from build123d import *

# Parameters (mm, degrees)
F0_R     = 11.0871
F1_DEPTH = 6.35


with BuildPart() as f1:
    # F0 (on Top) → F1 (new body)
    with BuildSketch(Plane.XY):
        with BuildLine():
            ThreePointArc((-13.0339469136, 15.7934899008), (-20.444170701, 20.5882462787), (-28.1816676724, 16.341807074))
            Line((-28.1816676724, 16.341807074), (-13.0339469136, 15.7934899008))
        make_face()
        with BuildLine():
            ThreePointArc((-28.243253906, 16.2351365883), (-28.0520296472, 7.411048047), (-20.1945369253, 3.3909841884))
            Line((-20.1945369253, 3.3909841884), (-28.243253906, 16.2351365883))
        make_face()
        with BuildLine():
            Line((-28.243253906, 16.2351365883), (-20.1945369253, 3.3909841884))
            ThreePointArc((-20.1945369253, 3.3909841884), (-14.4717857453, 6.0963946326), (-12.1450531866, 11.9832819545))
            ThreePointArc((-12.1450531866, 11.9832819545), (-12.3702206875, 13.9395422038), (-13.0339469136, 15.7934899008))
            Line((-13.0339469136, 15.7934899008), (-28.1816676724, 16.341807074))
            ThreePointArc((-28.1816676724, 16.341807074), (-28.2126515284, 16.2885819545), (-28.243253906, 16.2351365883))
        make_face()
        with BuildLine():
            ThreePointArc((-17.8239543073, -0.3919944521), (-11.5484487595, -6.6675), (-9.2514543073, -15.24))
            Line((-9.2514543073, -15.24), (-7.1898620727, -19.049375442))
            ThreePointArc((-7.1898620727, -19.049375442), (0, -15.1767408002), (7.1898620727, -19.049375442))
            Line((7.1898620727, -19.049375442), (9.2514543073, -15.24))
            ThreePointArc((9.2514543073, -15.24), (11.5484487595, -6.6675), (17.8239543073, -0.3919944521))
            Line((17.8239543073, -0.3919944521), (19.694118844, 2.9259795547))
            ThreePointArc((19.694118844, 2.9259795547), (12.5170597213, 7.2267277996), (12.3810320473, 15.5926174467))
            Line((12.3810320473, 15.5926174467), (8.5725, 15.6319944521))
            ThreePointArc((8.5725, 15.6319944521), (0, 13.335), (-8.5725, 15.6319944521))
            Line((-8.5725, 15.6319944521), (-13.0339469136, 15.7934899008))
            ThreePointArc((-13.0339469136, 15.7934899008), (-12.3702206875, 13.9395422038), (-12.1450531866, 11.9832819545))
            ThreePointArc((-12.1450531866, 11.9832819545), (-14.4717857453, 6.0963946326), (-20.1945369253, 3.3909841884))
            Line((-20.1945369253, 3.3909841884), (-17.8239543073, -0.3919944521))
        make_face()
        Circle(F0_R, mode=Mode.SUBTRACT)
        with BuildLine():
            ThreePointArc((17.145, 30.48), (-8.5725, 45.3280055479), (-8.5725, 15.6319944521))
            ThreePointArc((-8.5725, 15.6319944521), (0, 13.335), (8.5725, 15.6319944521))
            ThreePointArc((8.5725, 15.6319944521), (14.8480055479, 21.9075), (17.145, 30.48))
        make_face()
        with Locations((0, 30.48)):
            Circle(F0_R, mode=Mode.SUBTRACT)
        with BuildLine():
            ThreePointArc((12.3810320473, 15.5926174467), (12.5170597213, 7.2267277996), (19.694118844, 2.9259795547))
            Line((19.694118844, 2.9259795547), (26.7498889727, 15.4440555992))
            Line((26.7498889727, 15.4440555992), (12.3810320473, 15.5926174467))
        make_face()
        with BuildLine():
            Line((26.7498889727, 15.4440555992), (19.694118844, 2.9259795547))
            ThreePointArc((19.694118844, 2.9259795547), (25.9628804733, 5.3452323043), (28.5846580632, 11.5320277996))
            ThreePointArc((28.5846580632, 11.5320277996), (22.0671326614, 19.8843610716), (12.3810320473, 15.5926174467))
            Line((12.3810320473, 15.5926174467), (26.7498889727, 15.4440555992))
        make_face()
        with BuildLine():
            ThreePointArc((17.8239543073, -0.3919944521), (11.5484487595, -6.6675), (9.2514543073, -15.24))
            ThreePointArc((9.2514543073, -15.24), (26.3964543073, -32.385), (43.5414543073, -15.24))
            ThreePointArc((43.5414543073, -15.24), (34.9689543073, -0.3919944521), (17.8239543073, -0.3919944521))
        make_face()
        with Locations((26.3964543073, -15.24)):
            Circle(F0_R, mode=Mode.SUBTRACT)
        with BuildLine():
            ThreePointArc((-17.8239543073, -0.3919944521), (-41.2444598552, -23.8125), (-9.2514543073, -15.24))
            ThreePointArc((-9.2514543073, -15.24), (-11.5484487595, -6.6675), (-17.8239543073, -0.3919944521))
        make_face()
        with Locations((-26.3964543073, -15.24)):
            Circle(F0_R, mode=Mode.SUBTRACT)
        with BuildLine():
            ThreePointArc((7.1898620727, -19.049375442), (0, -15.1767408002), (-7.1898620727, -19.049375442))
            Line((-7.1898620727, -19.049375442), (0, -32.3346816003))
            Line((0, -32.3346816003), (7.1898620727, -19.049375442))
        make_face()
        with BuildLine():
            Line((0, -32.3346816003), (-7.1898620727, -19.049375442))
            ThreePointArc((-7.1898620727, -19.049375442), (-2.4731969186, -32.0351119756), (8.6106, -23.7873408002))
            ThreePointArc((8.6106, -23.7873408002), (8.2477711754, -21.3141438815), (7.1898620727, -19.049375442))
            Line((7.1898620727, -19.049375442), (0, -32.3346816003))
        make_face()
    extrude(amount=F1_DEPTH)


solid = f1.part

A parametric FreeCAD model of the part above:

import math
import FreeCAD as App
import Part
import Sketcher

V = App.Vector
Q = App.Units.Quantity

doc = App.newDocument("Part")
body = doc.addObject("PartDesign::Body", "Body")

# Sketch on XY plane
sketch1 = doc.addObject("Sketcher::SketchObject", "Sketch")
body.addObject(sketch1)
sketch1.AttachmentSupport = (doc.XY_Plane, [""])
sketch1.MapMode = "FlatFace"
sketch1.addGeometry(Part.ArcOfCircle(Part.Circle(V(-20.76, 11.98, 0), V(0, 0, 1), 8.61), math.radians(26), math.radians(150)), False)
sketch1.addGeometry(Part.ArcOfCircle(Part.Circle(V(-20.76, 11.98, 0), V(0, 0, 1), 8.61), math.radians(149.59), math.radians(150.41)), False)
sketch1.addGeometry(Part.ArcOfCircle(Part.Circle(V(-20.76, 11.98, 0), V(0, 0, 1), 8.61), math.radians(150), math.radians(274)), False)
sketch1.addGeometry(Part.LineSegment(V(-20.19, 3.39, 0), V(-17.82, -0.39, 0)), False)
sketch1.addGeometry(Part.ArcOfCircle(Part.Circle(V(-26.4, -15.24, 0), V(0, 0, 1), 17.14), math.radians(60), math.radians(360)), False)
sketch1.addGeometry(Part.LineSegment(V(-9.25, -15.24, 0), V(-7.19, -19.05, 0)), False)
sketch1.addGeometry(Part.ArcOfCircle(Part.Circle(V(0, -23.79, 0), V(0, 0, 1), 8.61), math.radians(147), math.radians(360)), False)
sketch1.addGeometry(Part.ArcOfCircle(Part.Circle(V(0, -23.79, 0), V(0, 0, 1), 8.61), math.radians(0), math.radians(33)), False)
sketch1.addGeometry(Part.LineSegment(V(7.19, -19.05, 0), V(9.25, -15.24, 0)), False)
sketch1.addGeometry(Part.ArcOfCircle(Part.Circle(V(26.4, -15.24, 0), V(0, 0, 1), 17.14), math.radians(180), math.radians(480)), False)
sketch1.addGeometry(Part.LineSegment(V(17.82, -0.39, 0), V(19.69, 2.93, 0)), False)
sketch1.addGeometry(Part.ArcOfCircle(Part.Circle(V(19.97, 11.53, 0), V(0, 0, 1), 8.61), math.radians(-92), math.radians(0)), False)
sketch1.addGeometry(Part.ArcOfCircle(Part.Circle(V(19.97, 11.53, 0), V(0, 0, 1), 8.61), math.radians(0), math.radians(152)), False)
sketch1.addGeometry(Part.LineSegment(V(12.38, 15.59, 0), V(8.57, 15.63, 0)), False)
sketch1.addGeometry(Part.ArcOfCircle(Part.Circle(V(0, 30.48, 0), V(0, 0, 1), 17.14), math.radians(-60), math.radians(0)), False)
sketch1.addGeometry(Part.ArcOfCircle(Part.Circle(V(0, 30.48, 0), V(0, 0, 1), 17.14), math.radians(0), math.radians(240)), False)
sketch1.addGeometry(Part.LineSegment(V(-8.57, 15.63, 0), V(-13.03, 15.79, 0)), False)
sketch1.addGeometry(Part.Circle(V(-26.4, -15.24, 0), V(0, 0, 1), 11.09), False)
sketch1.addGeometry(Part.Circle(V(26.4, -15.24, 0), V(0, 0, 1), 11.09), False)
sketch1.addGeometry(Part.Circle(V(0, 0, 0), V(0, 0, 1), 11.09), False)
sketch1.addGeometry(Part.Circle(V(0, 30.48, 0), V(0, 0, 1), 11.09), False)
sketch1.addConstraint(Sketcher.Constraint("Tangent", 0, 2, 1, 1))
sketch1.addConstraint(Sketcher.Constraint("Tangent", 1, 2, 2, 1))
sketch1.addConstraint(Sketcher.Constraint("Coincident", 2, 2, 3, 1))
sketch1.addConstraint(Sketcher.Constraint("Coincident", 3, 2, 4, 1))
sketch1.addConstraint(Sketcher.Constraint("Coincident", 4, 2, 5, 1))
sketch1.addConstraint(Sketcher.Constraint("Coincident", 5, 2, 6, 1))
sketch1.addConstraint(Sketcher.Constraint("Tangent", 6, 2, 7, 1))
sketch1.addConstraint(Sketcher.Constraint("Coincident", 7, 2, 8, 1))
sketch1.addConstraint(Sketcher.Constraint("Coincident", 8, 2, 9, 1))
sketch1.addConstraint(Sketcher.Constraint("Coincident", 9, 2, 10, 1))
sketch1.addConstraint(Sketcher.Constraint("Coincident", 10, 2, 11, 1))
sketch1.addConstraint(Sketcher.Constraint("Tangent", 11, 2, 12, 1))
sketch1.addConstraint(Sketcher.Constraint("Coincident", 12, 2, 13, 1))
sketch1.addConstraint(Sketcher.Constraint("Coincident", 13, 2, 14, 1))
sketch1.addConstraint(Sketcher.Constraint("Tangent", 14, 2, 15, 1))
sketch1.addConstraint(Sketcher.Constraint("Coincident", 15, 2, 16, 1))
sketch1.addConstraint(Sketcher.Constraint("Coincident", 16, 2, 0, 1))
sketch1.addConstraint(Sketcher.Constraint("Coincident", 19, 3, -1, 1))
sketch1.addConstraint(Sketcher.Constraint("Coincident", 2, 3, 0, 3))
sketch1.addConstraint(Sketcher.Constraint("Coincident", 17, 3, 4, 3))
sketch1.addConstraint(Sketcher.Constraint("Coincident", 18, 3, 9, 3))
sketch1.addConstraint(Sketcher.Constraint("Coincident", 20, 3, 14, 3))
sketch1.addConstraint(Sketcher.Constraint("Equal", 2, 6))
sketch1.addConstraint(Sketcher.Constraint("Equal", 6, 7))
sketch1.addConstraint(Sketcher.Constraint("Equal", 4, 9))
sketch1.addConstraint(Sketcher.Constraint("Equal", 7, 11))
sketch1.addConstraint(Sketcher.Constraint("Equal", 11, 12))
sketch1.addConstraint(Sketcher.Constraint("Equal", 9, 14))
sketch1.addConstraint(Sketcher.Constraint("Equal", 14, 15))
sketch1.addConstraint(Sketcher.Constraint("Equal", 17, 18))
sketch1.addConstraint(Sketcher.Constraint("Equal", 18, 19))
sketch1.addConstraint(Sketcher.Constraint("Equal", 19, 20))
sketch1.addConstraint(Sketcher.Constraint("Symmetric", 4, 3, 9, 3, -2))
sketch1.addConstraint(Sketcher.Constraint("Symmetric", 5, 2, 7, 2, -2))
sketch1.addConstraint(Sketcher.Constraint("Symmetric", 13, 2, 15, 2, -2))
sketch1.addConstraint(Sketcher.Constraint("Horizontal", 18, 3, 4, 2))
sketch1.addConstraint(Sketcher.Constraint("Horizontal", 7, 3, 6, 2))
sketch1.addConstraint(Sketcher.Constraint("Horizontal", 4, 2, 8, 2))
sketch1.addConstraint(Sketcher.Constraint("Horizontal", 3, 2, 9, 2))
sketch1.addConstraint(Sketcher.Constraint("Horizontal", 12, 3, 11, 2))
sketch1.addConstraint(Sketcher.Constraint("Horizontal", 20, 3, 14, 2))
sketch1.addConstraint(Sketcher.Constraint("Equal", 10, 13))
sketch1.addConstraint(Sketcher.Constraint("Equal", 3, 16))
sketch1.addConstraint(Sketcher.Constraint("Diameter", 17, Q("0.873 in")))
sketch1.addConstraint(Sketcher.Constraint("Radius", 0, Q("0.339 in")))
sketch1.addConstraint(Sketcher.Constraint("Radius", 4, Q("0.675 in")))
sketch1.addConstraint(Sketcher.Constraint("DistanceY", 4, 3, -1, 1, Q("0.6 in")))
sketch1.addConstraint(Sketcher.Constraint("DistanceY", -1, 1, 14, 3, Q("1.2 in")))
sketch1.addConstraint(Sketcher.Constraint("DistanceX", 15, 2, 13, 2, Q("0.675 in")))
sketch1.addConstraint(Sketcher.Constraint("DistanceX", 4, 3, 3, 2, Q("0.3375 in")))
sketch1.addConstraint(Sketcher.Constraint("DistanceX", 4, 3, 0, 3, 5.640801))
sketch1.addConstraint(Sketcher.Constraint("DistanceX", 1, 2, 2, 3, 7.487601))
sketch1.addConstraint(Sketcher.Constraint("Distance", 3, 4.464369))
sketch1.addConstraint(Sketcher.Constraint("DistanceY", -1, 1, 0, 3, 11.983282))
sketch1.addConstraint(Sketcher.Constraint("DistanceX", 1, 3, -1, 1, 20.755652))
sketch1.addConstraint(Sketcher.Constraint("DistanceY", 6, 3, -1, 1, 23.787341))
sketch1.addConstraint(Sketcher.Constraint("DistanceX", -1, 1, 11, 3, 19.974058))
sketch1.addConstraint(Sketcher.Constraint("DistanceX", -1, 1, 10, 2, 19.694119))
sketch1.addConstraint(Sketcher.Constraint("DistanceY", -1, 1, 10, 2, 2.92598))
sketch1.addConstraint(Sketcher.Constraint("DistanceY", 1, 2, 0, 2, 0.10667))
sketch1.addConstraint(Sketcher.Constraint("Distance", 5, 4.331455))
pad1 = doc.addObject("PartDesign::Pad", "Pad")
body.addObject(pad1)
pad1.Profile = sketch1
pad1.Length = Q("0.25 in")

doc.recompute()
